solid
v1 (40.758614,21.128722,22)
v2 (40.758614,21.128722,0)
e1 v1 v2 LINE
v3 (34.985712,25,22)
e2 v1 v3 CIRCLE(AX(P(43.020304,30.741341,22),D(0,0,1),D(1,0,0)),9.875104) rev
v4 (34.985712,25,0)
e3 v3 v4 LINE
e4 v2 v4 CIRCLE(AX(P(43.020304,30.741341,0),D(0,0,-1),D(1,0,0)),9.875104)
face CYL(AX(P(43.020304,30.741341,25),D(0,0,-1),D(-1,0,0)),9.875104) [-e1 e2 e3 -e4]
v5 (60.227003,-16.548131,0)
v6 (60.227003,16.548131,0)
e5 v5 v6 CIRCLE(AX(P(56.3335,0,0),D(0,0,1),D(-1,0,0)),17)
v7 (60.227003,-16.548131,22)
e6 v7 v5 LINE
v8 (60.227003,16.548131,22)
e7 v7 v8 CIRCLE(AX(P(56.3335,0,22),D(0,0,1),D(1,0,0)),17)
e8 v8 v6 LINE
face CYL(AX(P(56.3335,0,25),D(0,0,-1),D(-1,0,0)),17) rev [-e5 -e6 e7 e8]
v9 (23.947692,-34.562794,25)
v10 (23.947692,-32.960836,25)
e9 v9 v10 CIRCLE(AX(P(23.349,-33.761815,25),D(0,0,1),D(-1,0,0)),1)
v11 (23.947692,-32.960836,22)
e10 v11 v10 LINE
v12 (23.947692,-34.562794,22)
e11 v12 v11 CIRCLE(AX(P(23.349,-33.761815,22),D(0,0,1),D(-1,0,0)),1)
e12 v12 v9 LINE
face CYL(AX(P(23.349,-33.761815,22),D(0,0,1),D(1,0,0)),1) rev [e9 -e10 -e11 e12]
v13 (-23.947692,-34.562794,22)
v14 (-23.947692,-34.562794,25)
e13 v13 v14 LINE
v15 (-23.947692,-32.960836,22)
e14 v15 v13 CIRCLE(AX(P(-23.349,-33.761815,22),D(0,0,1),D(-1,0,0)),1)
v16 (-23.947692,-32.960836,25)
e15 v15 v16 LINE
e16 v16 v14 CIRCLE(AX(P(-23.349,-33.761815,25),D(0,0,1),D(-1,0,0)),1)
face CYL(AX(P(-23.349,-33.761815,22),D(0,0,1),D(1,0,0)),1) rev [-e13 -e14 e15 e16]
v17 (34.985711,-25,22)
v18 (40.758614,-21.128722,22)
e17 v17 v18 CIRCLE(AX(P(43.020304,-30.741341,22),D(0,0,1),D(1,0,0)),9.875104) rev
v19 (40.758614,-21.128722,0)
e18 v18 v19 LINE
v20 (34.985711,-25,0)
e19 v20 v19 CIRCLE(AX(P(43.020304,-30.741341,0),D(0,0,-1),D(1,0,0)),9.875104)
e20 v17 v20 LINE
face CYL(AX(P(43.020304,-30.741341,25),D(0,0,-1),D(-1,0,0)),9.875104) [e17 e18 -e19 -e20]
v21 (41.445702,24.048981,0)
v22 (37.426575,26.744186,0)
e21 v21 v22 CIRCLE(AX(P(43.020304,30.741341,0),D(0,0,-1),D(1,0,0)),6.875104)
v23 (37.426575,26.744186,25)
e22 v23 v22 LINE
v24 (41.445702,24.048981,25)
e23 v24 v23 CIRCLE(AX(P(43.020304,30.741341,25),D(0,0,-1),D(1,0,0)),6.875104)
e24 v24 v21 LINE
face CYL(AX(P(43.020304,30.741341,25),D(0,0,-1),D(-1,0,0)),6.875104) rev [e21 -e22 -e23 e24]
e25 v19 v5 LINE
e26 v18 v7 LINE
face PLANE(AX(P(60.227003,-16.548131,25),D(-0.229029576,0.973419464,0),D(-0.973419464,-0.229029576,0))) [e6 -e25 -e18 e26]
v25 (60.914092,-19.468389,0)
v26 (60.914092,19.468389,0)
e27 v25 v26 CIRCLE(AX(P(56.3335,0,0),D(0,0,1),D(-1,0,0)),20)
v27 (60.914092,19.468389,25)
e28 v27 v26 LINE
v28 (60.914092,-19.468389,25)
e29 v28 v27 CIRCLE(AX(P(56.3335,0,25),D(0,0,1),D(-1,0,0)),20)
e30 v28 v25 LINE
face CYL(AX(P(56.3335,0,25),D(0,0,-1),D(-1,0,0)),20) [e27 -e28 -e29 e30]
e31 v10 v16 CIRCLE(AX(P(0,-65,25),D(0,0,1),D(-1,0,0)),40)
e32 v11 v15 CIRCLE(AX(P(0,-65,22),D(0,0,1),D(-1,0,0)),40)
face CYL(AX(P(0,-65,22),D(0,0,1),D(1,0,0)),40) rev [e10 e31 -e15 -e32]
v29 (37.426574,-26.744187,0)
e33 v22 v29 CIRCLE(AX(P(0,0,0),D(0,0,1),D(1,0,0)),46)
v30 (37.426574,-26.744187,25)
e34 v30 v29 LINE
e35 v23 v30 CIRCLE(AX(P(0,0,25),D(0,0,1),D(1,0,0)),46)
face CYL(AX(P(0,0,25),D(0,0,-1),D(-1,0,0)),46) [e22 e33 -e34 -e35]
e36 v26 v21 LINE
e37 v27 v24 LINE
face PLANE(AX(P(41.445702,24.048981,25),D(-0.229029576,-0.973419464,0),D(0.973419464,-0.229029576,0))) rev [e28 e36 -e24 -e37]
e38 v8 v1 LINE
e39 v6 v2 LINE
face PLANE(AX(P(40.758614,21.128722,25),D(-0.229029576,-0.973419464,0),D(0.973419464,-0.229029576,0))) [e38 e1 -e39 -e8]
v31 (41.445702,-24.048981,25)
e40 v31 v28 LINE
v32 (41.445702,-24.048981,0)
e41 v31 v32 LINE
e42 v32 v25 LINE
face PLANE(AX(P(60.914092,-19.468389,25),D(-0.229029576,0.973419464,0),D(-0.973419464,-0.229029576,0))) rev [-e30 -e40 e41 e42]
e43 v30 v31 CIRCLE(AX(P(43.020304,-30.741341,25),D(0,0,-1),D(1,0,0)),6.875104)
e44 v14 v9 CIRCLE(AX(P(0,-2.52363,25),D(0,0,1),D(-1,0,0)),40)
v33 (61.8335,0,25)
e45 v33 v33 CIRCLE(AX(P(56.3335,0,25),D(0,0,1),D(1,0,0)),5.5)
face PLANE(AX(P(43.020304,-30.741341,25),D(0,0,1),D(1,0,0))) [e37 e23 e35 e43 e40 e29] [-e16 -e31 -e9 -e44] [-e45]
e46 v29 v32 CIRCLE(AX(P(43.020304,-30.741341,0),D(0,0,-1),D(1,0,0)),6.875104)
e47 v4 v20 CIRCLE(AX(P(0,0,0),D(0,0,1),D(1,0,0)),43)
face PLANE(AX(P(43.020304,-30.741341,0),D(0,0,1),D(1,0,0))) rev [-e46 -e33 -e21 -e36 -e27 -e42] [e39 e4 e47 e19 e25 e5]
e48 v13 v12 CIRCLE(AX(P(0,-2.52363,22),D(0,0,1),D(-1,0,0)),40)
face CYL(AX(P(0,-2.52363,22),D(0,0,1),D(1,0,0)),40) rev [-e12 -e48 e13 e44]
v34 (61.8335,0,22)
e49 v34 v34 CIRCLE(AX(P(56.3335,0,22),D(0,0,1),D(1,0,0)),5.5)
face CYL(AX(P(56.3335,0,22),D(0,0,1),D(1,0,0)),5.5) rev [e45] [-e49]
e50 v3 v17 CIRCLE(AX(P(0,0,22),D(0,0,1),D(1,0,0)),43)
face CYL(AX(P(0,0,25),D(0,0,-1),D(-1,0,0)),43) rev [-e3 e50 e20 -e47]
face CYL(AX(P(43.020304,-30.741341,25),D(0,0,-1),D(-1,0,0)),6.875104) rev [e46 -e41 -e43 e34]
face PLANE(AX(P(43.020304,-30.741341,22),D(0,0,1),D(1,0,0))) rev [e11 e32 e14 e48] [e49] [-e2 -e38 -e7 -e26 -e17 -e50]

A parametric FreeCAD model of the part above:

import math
import FreeCAD as App
import Part
import Sketcher

doc = App.newDocument("Part")
body = doc.addObject("PartDesign::Body", "Body")

# Sketch on XY plane
sketch1 = doc.addObject("Sketcher::SketchObject", "Sketch")
body.addObject(sketch1)
sketch1.AttachmentSupport = (doc.XY_Plane, [""])
sketch1.MapMode = "FlatFace"
sketch1.addGeometry([
    Part.LineSegment(App.Vector(60.914092, 19.468389, 0), App.Vector(41.445702, 24.048981, 0)),  # 0
    Part.ArcOfCircle(Part.Circle(App.Vector(43.020304, 30.741341, 0), App.Vector(0, 0, 1), 6.875104), math.radians(-144.451244), math.radians(-103.239946)),  # 1
    Part.ArcOfCircle(Part.Circle(App.Vector(0, 0, 0), App.Vector(0, 0, 1), 46), math.radians(35.548744), math.radians(324.451255)),  # 2
    Part.ArcOfCircle(Part.Circle(App.Vector(43.020304, -30.741341, 0), App.Vector(0, 0, 1), 6.875104), math.radians(103.239946), math.radians(144.451249)),  # 3
    Part.LineSegment(App.Vector(41.445702, -24.048981, 0), App.Vector(60.914092, -19.468389, 0)),  # 4
    Part.ArcOfCircle(Part.Circle(App.Vector(56.3335, 0, 0), App.Vector(0, 0, 1), 20), math.radians(-76.760054), math.radians(76.760054)),  # 5
    Part.LineSegment(App.Vector(40.758614, 21.128722, 0), App.Vector(60.227003, 16.548131, 0)),  # 6
    Part.ArcOfCircle(Part.Circle(App.Vector(56.3335, 0, 0), App.Vector(0, 0, 1), 17), math.radians(-76.760054), math.radians(76.760054)),  # 7
    Part.LineSegment(App.Vector(60.227003, -16.548131, 0), App.Vector(40.758614, -21.128722, 0)),  # 8
    Part.ArcOfCircle(Part.Circle(App.Vector(43.020304, -30.741341, 0), App.Vector(0, 0, 1), 9.875104), math.radians(103.239946), math.radians(144.451249)),  # 9
    Part.ArcOfCircle(Part.Circle(App.Vector(0, 0, 0), App.Vector(0, 0, 1), 43), math.radians(35.548743), math.radians(324.451255)),  # 10
    Part.ArcOfCircle(Part.Circle(App.Vector(43.020304, 30.741341, 0), App.Vector(0, 0, 1), 9.875104), math.radians(-144.451244), math.radians(-103.239946)),  # 11
], False)
sketch1.addConstraint([
    Sketcher.Constraint("Tangent", 0, 2, 1, 2),
    Sketcher.Constraint("Tangent", 1, 1, 2, 1),
    Sketcher.Constraint("Tangent", 2, 2, 3, 2),
    Sketcher.Constraint("Tangent", 3, 1, 4, 1),
    Sketcher.Constraint("Tangent", 4, 2, 5, 1),
    Sketcher.Constraint("Tangent", 5, 2, 0, 1),
    Sketcher.Constraint("Tangent", 6, 2, 7, 2),
    Sketcher.Constraint("Tangent", 7, 1, 8, 1),
    Sketcher.Constraint("Tangent", 8, 2, 9, 1),
    Sketcher.Constraint("Tangent", 9, 2, 10, 2),
    Sketcher.Constraint("Tangent", 10, 1, 11, 1),
    Sketcher.Constraint("Tangent", 11, 2, 6, 1),
    Sketcher.Constraint("Coincident", 2, 3, -1, 1),
    Sketcher.Constraint("Coincident", 10, 3, -1, 1),
    Sketcher.Constraint("Coincident", 7, 3, 5, 3),
    Sketcher.Constraint("Coincident", 9, 3, 3, 3),
    Sketcher.Constraint("Coincident", 11, 3, 1, 3),
    Sketcher.Constraint("Equal", 1, 3),
    Sketcher.Constraint("Symmetric", 0, 2, 3, 1, -1),
    Sketcher.Constraint("Parallel", 0, 6),
    Sketcher.Constraint("Radius", 2, 46.0),
    Sketcher.Constraint("Radius", 5, 20.0),
    Sketcher.Constraint("Radius", 7, 17.0),
    Sketcher.Constraint("Distance", 0, 20.0),
    Sketcher.Constraint("DistanceY", 9, 2, -1, 1, 25.0),
    Sketcher.Constraint("Radius", 1, 6.875104),
])
pad1 = doc.addObject("PartDesign::Pad", "Pad")
body.addObject(pad1)
pad1.Profile = sketch1
pad1.Length = 25

# Sketch on XY plane
sketch2 = doc.addObject("Sketcher::SketchObject", "Sketch001")
body.addObject(sketch2)
sketch2.AttachmentSupport = (doc.XY_Plane, [""])
sketch2.MapMode = "FlatFace"
sketch2.AttachmentOffset = App.Placement(App.Vector(0, 0, 22), App.Rotation())
sketch2.addGeometry([
    Part.LineSegment(App.Vector(41.445702, -24.048981, 0), App.Vector(60.914092, -19.468389, 0)),  # 0
    Part.ArcOfCircle(Part.Circle(App.Vector(56.3335, 0, 0), App.Vector(0, 0, 1), 20), math.radians(-76.760054), math.radians(76.760054)),  # 1
    Part.LineSegment(App.Vector(60.914092, 19.468389, 0), App.Vector(41.445702, 24.048981, 0)),  # 2
    Part.ArcOfCircle(Part.Circle(App.Vector(43.020304, 30.741341, 0), App.Vector(0, 0, 1), 6.875104), math.radians(-144.451244), math.radians(-103.239946)),  # 3
    Part.ArcOfCircle(Part.Circle(App.Vector(0, 0, 0), App.Vector(0, 0, 1), 46), math.radians(35.548744), math.radians(324.451255)),  # 4
    Part.ArcOfCircle(Part.Circle(App.Vector(43.020304, -30.741341, 0), App.Vector(0, 0, 1), 6.875104), math.radians(103.239946), math.radians(144.451249)),  # 5
], False)
sketch2.addConstraint([
    Sketcher.Constraint("Tangent", 0, 2, 1, 1),
    Sketcher.Constraint("Tangent", 1, 2, 2, 1),
    Sketcher.Constraint("Tangent", 2, 2, 3, 2),
    Sketcher.Constraint("Tangent", 3, 1, 4, 1),
    Sketcher.Constraint("Tangent", 4, 2, 5, 2),
    Sketcher.Constraint("Tangent", 5, 1, 0, 1),
    Sketcher.Constraint("Coincident", 4, 3, -1, 1),
    Sketcher.Constraint("Equal", 3, 5),
    Sketcher.Constraint("Symmetric", 0, 2, 1, 2, -1),
    Sketcher.Constraint("Radius", 1, 20.0),
    Sketcher.Constraint("Radius", 4, 46.0),
    Sketcher.Constraint("Distance", 0, 20.0),
    Sketcher.Constraint("Radius", 3, 6.875104),
    Sketcher.Constraint("DistanceX", -1, 1, 1, 3, 56.3335),
])
pad2 = doc.addObject("PartDesign::Pad", "Pad001")
body.addObject(pad2)
pad2.Profile = sketch2
pad2.Length = 3

# Sketch on XY plane
sketch3 = doc.addObject("Sketcher::SketchObject", "Sketch002")
body.addObject(sketch3)
sketch3.AttachmentSupport = (doc.XY_Plane, [""])
sketch3.MapMode = "FlatFace"
sketch3.AttachmentOffset = App.Placement(App.Vector(0, 0, 25), App.Rotation())
sketch3.addGeometry([
    Part.ArcOfCircle(Part.Circle(App.Vector(-23.349, -33.761815, 0), App.Vector(0, 0, 1), 1), math.radians(126.776298), math.radians(233.223702)),
    Part.ArcOfCircle(Part.Circle(App.Vector(0, -2.52363, 0), App.Vector(0, 0, 1), 40), math.radians(-126.776298), math.radians(-53.223702)),
    Part.ArcOfCircle(Part.Circle(App.Vector(23.349, -33.761815, 0), App.Vector(0, 0, 1), 1), math.radians(-53.223702), math.radians(53.223702)),
    Part.ArcOfCircle(Part.Circle(App.Vector(0, -65, 0), App.Vector(0, 0, 1), 40), math.radians(53.223702), math.radians(126.776298)),
], False)
sketch3.addConstraint([
    Sketcher.Constraint("Tangent", 0, 2, 1, 1),
    Sketcher.Constraint("Tangent", 1, 2, 2, 1),
    Sketcher.Constraint("Tangent", 2, 2, 3, 1),
    Sketcher.Constraint("Tangent", 3, 2, 0, 1),
    Sketcher.Constraint("Equal", 0, 2),
    Sketcher.Constraint("Equal", 1, 3),
    Sketcher.Constraint("Symmetric", 0, 3, 2, 3, -2),
    Sketcher.Constraint("Radius", 0, 1.0),
    Sketcher.Constraint("Radius", 1, 40.0),
    Sketcher.Constraint("DistanceY", 3, 3, -1, 1, 65.0),
    Sketcher.Constraint("DistanceX", 0, 3, -1, 1, 23.349),
])
pocket1 = doc.addObject("PartDesign::Pocket", "Pocket")
body.addObject(pocket1)
pocket1.Profile = sketch3
pocket1.Length = 3

# Sketch on XY plane
sketch4 = doc.addObject("Sketcher::SketchObject", "Sketch003")
body.addObject(sketch4)
sketch4.AttachmentSupport = (doc.XY_Plane, [""])
sketch4.MapMode = "FlatFace"
sketch4.AttachmentOffset = App.Placement(App.Vector(0, 0, 25), App.Rotation())
sketch4.addGeometry(Part.Circle(App.Vector(56.3335, 0, 0), App.Vector(0, 0, 1), 5.5), False)
sketch4.addConstraint([
    Sketcher.Constraint("PointOnObject", 0, 3, -1),
    Sketcher.Constraint("Diameter", 0, 11.0),
    Sketcher.Constraint("DistanceX", -1, 1, 0, 3, 56.3335),
])
pocket2 = doc.addObject("PartDesign::Pocket", "Pocket001")
body.addObject(pocket2)
pocket2.Profile = sketch4
pocket2.Length = 3

doc.recompute()
